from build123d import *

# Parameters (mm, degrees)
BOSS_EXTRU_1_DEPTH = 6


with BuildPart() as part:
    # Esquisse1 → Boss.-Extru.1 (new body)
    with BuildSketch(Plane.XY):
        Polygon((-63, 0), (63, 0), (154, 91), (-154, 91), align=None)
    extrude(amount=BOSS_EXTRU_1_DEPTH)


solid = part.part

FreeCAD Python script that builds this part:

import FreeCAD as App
import Part
import Sketcher
Q = App.Units.Quantity


def add_polygon(sketch, points):
    """Adds a closed chain of lines whose ends are joined by coincident constraints."""
    first, n = sketch.GeometryCount, len(points)
    for a, b in zip(points, points[1:] + points[:1]):
        sketch.addGeometry(Part.LineSegment(App.Vector(*a, 0), App.Vector(*b, 0)), False)
    for i in range(n):
        sketch.addConstraint(Sketcher.Constraint("Coincident", first + i, 2, first + (i + 1) % n, 1))

doc = App.newDocument("Part")
body = doc.addObject("PartDesign::Body", "Body")

sketch1 = body.newObject("Sketcher::SketchObject", "Sketch")
sketch1.AttachmentSupport = (doc.getObject("XY_Plane"), [""])
sketch1.MapMode = "FlatFace"
add_polygon(sketch1, [(-63, 0), (63, 0), (154, 91), (-154, 91)])
sketch1.addConstraint([
    Sketcher.Constraint("Horizontal", 0),
    Sketcher.Constraint("Horizontal", 2),
    Sketcher.Constraint("Symmetric", 0, 2, 3, 2, -1, 1),
    Sketcher.Constraint("Perpendicular", 1, 3),
    Sketcher.Constraint("Equal", 1, 3),
    Sketcher.Constraint("DistanceX", 0, 1, 0, 2, Q("126 mm")),
    Sketcher.Constraint("DistanceX", 2, 2, 2, 1, Q("308 mm")),
])
pad1 = body.newObject("PartDesign::Pad", "Pad")
pad1.Profile = sketch1
pad1.Length = 6

doc.recompute()
